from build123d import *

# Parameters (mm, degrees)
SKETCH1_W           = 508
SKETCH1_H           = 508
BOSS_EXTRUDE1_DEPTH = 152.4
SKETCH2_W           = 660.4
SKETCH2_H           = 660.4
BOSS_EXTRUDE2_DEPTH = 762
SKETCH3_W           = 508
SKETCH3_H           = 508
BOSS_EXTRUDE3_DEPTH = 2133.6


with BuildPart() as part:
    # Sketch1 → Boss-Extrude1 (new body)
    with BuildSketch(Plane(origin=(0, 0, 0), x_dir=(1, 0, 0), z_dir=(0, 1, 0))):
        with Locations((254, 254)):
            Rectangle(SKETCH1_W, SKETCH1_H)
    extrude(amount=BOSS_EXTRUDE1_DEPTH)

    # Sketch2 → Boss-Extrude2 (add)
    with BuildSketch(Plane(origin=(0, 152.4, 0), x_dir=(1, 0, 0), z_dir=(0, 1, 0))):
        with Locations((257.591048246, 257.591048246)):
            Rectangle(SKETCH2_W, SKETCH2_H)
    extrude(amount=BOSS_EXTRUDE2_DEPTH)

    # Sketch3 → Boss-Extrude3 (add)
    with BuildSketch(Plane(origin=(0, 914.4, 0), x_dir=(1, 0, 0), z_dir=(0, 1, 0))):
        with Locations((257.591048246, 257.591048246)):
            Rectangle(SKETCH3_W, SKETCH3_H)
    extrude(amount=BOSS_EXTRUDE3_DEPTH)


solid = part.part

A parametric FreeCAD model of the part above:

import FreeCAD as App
import Part
import Sketcher
from FreeCAD import Vector
Q = App.Units.Quantity

doc = App.newDocument("Part")
body = doc.addObject("PartDesign::Body", "Body")

# Sketch on XZ plane
sketch1 = doc.addObject("Sketcher::SketchObject", "Sketch")
body.addObject(sketch1)
sketch1.AttachmentSupport = (doc.XZ_Plane, [""])
sketch1.MapMode = "FlatFace"
sketch1.addGeometry([
    Part.LineSegment(Vector(0, -508, 0), Vector(0, 0, 0)),
    Part.LineSegment(Vector(0, 0, 0), Vector(508, 0, 0)),
    Part.LineSegment(Vector(508, 0, 0), Vector(508, -508, 0)),
    Part.LineSegment(Vector(508, -508, 0), Vector(0, -508, 0)),
], False)
sketch1.addConstraint([
    Sketcher.Constraint("Coincident", 0, 2, 1, 1),
    Sketcher.Constraint("Coincident", 1, 2, 2, 1),
    Sketcher.Constraint("Coincident", 2, 2, 3, 1),
    Sketcher.Constraint("Coincident", 3, 2, 0, 1),
    Sketcher.Constraint("Vertical", 0),
    Sketcher.Constraint("Horizontal", 1),
    Sketcher.Constraint("Vertical", 2),
    Sketcher.Constraint("Horizontal", 3),
    Sketcher.Constraint("Coincident", 0, 2, -1, 1),
    Sketcher.Constraint("Equal", 3, 0),
    Sketcher.Constraint("DistanceX", 1, 1, 1, 2, Q("20 in")),
])
pad1 = doc.addObject("PartDesign::Pad", "Pad")
body.addObject(pad1)
pad1.Profile = sketch1
pad1.Length = Q("6 in")
pad1.Reversed = True

# Sketch on XZ plane
sketch2 = doc.addObject("Sketcher::SketchObject", "Sketch001")
body.addObject(sketch2)
sketch2.AttachmentSupport = (doc.XZ_Plane, [""])
sketch2.MapMode = "FlatFace"
sketch2.AttachmentOffset = App.Placement(Vector(0, 0, -6 * 25.4), App.Rotation())
sketch2.addGeometry([
    Part.LineSegment(Vector(-73, -588, 0), Vector(-73, 73, 0)),
    Part.LineSegment(Vector(-73, 73, 0), Vector(588, 73, 0)),
    Part.LineSegment(Vector(588, 73, 0), Vector(588, -588, 0)),
    Part.LineSegment(Vector(588, -588, 0), Vector(-73, -588, 0)),
], False)
sketch2.addConstraint([
    Sketcher.Constraint("Coincident", 0, 2, 1, 1),
    Sketcher.Constraint("Coincident", 1, 2, 2, 1),
    Sketcher.Constraint("Coincident", 2, 2, 3, 1),
    Sketcher.Constraint("Coincident", 3, 2, 0, 1),
    Sketcher.Constraint("Vertical", 0),
    Sketcher.Constraint("Horizontal", 1),
    Sketcher.Constraint("Vertical", 2),
    Sketcher.Constraint("Horizontal", 3),
    Sketcher.Constraint("Equal", 3, 0),
    Sketcher.Constraint("DistanceX", 1, 1, 1, 2, Q("26 in")),
    Sketcher.Constraint("DistanceX", 0, 2, -1, 1, 72.608952),
    Sketcher.Constraint("DistanceY", -1, 1, 0, 2, 72.608952),
])
pad2 = doc.addObject("PartDesign::Pad", "Pad001")
body.addObject(pad2)
pad2.Profile = sketch2
pad2.Length = Q("30 in")
pad2.Reversed = True

# Sketch on XZ plane
sketch3 = doc.addObject("Sketcher::SketchObject", "Sketch002")
body.addObject(sketch3)
sketch3.AttachmentSupport = (doc.XZ_Plane, [""])
sketch3.MapMode = "FlatFace"
sketch3.AttachmentOffset = App.Placement(Vector(0, 0, -36 * 25.4), App.Rotation())
sketch3.addGeometry([
    Part.LineSegment(Vector(4, -512, 0), Vector(4, -4, 0)),
    Part.LineSegment(Vector(4, -4, 0), Vector(512, -4, 0)),
    Part.LineSegment(Vector(512, -4, 0), Vector(512, -512, 0)),
    Part.LineSegment(Vector(512, -512, 0), Vector(4, -512, 0)),
], False)
sketch3.addConstraint([
    Sketcher.Constraint("Coincident", 0, 2, 1, 1),
    Sketcher.Constraint("Coincident", 1, 2, 2, 1),
    Sketcher.Constraint("Coincident", 2, 2, 3, 1),
    Sketcher.Constraint("Coincident", 3, 2, 0, 1),
    Sketcher.Constraint("Vertical", 0),
    Sketcher.Constraint("Horizontal", 1),
    Sketcher.Constraint("Vertical", 2),
    Sketcher.Constraint("Horizontal", 3),
    Sketcher.Constraint("Equal", 3, 0),
    Sketcher.Constraint("DistanceX", 1, 1, 1, 2, Q("20 in")),
    Sketcher.Constraint("DistanceX", -1, 1, 0, 2, 3.591048),
    Sketcher.Constraint("DistanceY", 0, 2, -1, 1, 3.591048),
])
pad3 = doc.addObject("PartDesign::Pad", "Pad002")
body.addObject(pad3)
pad3.Profile = sketch3
pad3.Length = Q("84 in")
pad3.Reversed = True

doc.recompute()
